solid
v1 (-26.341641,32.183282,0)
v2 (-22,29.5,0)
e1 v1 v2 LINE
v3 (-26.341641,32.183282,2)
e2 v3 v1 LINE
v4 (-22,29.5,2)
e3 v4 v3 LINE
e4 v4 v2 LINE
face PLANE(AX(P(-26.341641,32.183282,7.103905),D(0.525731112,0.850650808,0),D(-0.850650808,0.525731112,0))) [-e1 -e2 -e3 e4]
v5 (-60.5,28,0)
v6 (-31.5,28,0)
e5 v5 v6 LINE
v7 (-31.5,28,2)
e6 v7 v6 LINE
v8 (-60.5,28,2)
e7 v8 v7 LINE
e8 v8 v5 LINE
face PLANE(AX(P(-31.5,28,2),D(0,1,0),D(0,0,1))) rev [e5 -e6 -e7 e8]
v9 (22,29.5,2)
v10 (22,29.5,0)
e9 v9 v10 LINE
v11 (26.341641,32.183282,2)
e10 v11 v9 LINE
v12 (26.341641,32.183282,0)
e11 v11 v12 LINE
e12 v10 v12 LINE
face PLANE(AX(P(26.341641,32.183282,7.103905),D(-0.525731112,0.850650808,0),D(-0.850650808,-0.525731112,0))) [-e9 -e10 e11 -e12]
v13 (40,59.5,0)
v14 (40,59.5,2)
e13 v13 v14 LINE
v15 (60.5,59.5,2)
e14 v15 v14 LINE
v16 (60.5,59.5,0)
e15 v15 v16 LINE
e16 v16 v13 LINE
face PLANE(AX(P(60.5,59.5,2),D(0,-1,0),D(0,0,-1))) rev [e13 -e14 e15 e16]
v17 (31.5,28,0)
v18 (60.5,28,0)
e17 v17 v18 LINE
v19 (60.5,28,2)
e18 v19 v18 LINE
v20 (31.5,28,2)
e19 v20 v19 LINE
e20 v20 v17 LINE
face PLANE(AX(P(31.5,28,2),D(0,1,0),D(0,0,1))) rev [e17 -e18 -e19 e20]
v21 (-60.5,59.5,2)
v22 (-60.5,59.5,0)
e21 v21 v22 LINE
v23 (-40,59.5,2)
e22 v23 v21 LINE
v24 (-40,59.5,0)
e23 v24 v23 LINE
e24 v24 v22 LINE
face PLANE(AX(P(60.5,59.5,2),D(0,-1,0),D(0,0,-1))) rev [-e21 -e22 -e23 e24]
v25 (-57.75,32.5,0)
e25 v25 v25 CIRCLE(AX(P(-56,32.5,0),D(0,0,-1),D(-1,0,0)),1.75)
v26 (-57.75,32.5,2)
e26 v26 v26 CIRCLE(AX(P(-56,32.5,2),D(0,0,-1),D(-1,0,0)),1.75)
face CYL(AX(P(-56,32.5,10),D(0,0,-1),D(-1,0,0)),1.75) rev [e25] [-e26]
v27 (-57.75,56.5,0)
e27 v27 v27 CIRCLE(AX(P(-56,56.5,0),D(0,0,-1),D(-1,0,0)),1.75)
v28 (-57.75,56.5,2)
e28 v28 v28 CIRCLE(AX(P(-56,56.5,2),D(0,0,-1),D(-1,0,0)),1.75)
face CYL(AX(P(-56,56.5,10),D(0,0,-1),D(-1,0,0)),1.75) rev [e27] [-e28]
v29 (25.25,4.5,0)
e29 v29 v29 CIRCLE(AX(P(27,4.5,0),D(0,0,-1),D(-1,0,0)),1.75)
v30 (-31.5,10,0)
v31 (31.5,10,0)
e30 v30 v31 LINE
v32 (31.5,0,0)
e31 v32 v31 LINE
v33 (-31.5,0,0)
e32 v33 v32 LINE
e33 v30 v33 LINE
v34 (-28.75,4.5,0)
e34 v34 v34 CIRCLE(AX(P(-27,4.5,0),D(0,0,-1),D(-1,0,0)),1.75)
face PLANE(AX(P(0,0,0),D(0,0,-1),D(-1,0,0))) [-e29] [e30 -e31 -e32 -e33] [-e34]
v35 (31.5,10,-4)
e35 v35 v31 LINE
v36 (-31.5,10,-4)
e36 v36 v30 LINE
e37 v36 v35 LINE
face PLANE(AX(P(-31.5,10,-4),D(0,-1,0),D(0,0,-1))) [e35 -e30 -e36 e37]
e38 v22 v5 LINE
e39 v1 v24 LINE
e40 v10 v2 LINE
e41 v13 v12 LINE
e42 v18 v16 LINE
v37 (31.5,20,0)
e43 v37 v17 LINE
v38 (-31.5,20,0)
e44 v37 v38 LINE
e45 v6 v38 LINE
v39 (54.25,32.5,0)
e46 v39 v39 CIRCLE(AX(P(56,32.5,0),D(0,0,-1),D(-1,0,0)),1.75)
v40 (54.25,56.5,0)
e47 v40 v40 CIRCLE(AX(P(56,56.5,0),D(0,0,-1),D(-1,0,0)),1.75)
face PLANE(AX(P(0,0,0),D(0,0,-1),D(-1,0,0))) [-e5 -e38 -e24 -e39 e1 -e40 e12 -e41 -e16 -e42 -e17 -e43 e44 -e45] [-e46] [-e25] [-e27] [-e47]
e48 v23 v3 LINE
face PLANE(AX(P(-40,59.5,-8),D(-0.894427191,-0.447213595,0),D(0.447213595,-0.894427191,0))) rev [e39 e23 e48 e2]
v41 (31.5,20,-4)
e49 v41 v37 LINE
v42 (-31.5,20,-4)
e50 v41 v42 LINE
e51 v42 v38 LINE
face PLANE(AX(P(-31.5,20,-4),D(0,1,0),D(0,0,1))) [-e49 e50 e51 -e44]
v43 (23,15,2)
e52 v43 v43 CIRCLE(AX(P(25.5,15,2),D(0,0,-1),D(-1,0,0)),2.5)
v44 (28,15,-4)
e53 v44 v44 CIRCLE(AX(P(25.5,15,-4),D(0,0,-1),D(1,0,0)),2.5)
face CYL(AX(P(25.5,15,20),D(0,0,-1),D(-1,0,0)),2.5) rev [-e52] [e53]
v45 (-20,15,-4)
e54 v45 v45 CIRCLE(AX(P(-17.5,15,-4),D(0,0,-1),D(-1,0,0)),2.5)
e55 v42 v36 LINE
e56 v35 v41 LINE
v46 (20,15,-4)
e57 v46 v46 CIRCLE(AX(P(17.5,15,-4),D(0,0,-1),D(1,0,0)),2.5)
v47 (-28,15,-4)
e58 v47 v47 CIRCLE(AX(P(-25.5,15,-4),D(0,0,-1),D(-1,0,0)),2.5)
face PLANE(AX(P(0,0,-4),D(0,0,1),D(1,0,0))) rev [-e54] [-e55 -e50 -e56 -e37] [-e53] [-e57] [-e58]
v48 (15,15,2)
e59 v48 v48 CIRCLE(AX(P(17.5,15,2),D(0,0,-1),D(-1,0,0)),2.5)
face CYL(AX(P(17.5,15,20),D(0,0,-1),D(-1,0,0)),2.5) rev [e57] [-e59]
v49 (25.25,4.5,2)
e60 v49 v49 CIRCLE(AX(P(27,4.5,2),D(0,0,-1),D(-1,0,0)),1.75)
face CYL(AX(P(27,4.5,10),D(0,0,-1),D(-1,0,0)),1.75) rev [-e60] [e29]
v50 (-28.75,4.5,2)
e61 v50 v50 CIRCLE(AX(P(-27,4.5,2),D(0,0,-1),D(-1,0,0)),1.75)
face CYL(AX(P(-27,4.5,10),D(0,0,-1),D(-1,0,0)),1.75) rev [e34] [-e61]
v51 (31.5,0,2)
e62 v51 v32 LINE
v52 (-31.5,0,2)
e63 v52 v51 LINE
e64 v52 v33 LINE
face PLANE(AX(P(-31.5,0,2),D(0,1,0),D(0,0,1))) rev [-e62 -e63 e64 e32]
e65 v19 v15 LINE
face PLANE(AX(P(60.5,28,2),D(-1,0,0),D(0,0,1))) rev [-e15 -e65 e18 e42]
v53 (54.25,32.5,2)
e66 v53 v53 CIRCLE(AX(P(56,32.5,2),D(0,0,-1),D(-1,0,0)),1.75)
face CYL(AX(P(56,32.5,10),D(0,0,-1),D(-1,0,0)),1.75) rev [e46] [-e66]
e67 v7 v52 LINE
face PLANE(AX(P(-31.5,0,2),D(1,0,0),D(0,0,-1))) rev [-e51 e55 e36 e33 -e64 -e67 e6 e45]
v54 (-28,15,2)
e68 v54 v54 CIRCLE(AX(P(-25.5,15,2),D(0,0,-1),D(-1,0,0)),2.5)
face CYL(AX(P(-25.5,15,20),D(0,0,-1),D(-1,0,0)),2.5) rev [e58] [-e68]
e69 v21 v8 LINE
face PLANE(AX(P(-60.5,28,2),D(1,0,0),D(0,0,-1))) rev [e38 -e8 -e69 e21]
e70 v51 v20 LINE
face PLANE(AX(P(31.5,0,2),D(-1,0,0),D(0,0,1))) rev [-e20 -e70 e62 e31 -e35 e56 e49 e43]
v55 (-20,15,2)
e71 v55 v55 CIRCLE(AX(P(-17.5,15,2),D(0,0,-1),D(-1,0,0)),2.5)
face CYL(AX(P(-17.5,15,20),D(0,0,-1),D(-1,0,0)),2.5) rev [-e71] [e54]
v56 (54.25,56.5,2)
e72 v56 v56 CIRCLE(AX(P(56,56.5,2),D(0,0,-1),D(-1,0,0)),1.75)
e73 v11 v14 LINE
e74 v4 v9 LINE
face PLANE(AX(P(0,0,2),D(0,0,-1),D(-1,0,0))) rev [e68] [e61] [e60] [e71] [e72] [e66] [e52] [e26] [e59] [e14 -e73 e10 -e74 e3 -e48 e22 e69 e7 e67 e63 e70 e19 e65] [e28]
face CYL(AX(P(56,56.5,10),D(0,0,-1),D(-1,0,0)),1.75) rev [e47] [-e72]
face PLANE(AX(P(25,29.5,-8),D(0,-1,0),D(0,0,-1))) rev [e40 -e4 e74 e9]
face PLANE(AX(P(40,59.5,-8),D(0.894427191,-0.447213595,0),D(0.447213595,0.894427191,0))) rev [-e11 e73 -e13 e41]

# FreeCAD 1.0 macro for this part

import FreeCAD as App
import Part
import Sketcher
Q = App.Units.Quantity


def add_polygon(sketch, points):
    """Adds a closed chain of lines whose ends are joined by coincident constraints."""
    first, n = sketch.GeometryCount, len(points)
    for a, b in zip(points, points[1:] + points[:1]):
        sketch.addGeometry(Part.LineSegment(App.Vector(*a, 0), App.Vector(*b, 0)), False)
    for i in range(n):
        sketch.addConstraint(Sketcher.Constraint("Coincident", first + i, 2, first + (i + 1) % n, 1))

doc = App.newDocument("Part")
body = doc.addObject("PartDesign::Body", "Body")

# Sketch on XY plane
sketch1 = body.newObject("Sketcher::SketchObject", "Sketch")
sketch1.AttachmentSupport = (doc.getObject("XY_Plane"), [""])
sketch1.MapMode = "FlatFace"
add_polygon(sketch1, [(-32, 0), (32, 0), (32, 28), (60, 28), (60, 60), (-60, 60), (-60, 28), (-32, 28)])  # lines 0-7
sketch1.addConstraint([
    Sketcher.Constraint("Horizontal", 0),
    Sketcher.Constraint("Vertical", 1),
    Sketcher.Constraint("Horizontal", 2),
    Sketcher.Constraint("Vertical", 3),
    Sketcher.Constraint("Horizontal", 4),
    Sketcher.Constraint("Vertical", 5),
    Sketcher.Constraint("Horizontal", 6),
    Sketcher.Constraint("Vertical", 7),
    Sketcher.Constraint("Symmetric", 0, 2, 7, 2, -1, 1),
    Sketcher.Constraint("Symmetric", 2, 2, 5, 2, -2),
    Sketcher.Constraint("DistanceX", 0, 1, 0, 2, Q("63 mm")),
    Sketcher.Constraint("DistanceX", 2, 1, 2, 2, Q("29 mm")),
    Sketcher.Constraint("DistanceY", 1, 1, 1, 2, Q("28 mm")),
    Sketcher.Constraint("DistanceY", 3, 1, 3, 2, Q("31.5 mm")),
])
pad1 = body.newObject("PartDesign::Pad", "Pad")
pad1.Profile = sketch1
pad1.Length = 2

# Sketch on XY plane
sketch2 = body.newObject("Sketcher::SketchObject", "Sketch001")
sketch2.AttachmentSupport = (doc.getObject("XY_Plane"), [""])
sketch2.MapMode = "FlatFace"
sketch2.addGeometry([
    Part.Circle(App.Vector(56, 56.5, 0), App.Vector(0, 0, 1), 1.8),  # 0
    Part.Circle(App.Vector(56, 32.5, 0), App.Vector(0, 0, 1), 1.8),  # 1
    Part.Circle(App.Vector(27, 4.5, 0), App.Vector(0, 0, 1), 1.8),  # 2
    Part.Circle(App.Vector(-27, 4.5, 0), App.Vector(0, 0, 1), 1.8),  # 3
    Part.Circle(App.Vector(-56, 32.5, 0), App.Vector(0, 0, 1), 1.8),  # 4
    Part.Circle(App.Vector(-56, 56.5, 0), App.Vector(0, 0, 1), 1.8),  # 5
], False)
sketch2.addConstraint([
    Sketcher.Constraint("Equal", 0, 1),
    Sketcher.Constraint("Equal", 1, 2),
    Sketcher.Constraint("Equal", 2, 3),
    Sketcher.Constraint("Equal", 3, 4),
    Sketcher.Constraint("Equal", 4, 5),
    Sketcher.Constraint("Symmetric", 2, 3, 3, 3, -2),
    Sketcher.Constraint("Symmetric", 1, 3, 4, 3, -2),
    Sketcher.Constraint("Symmetric", 0, 3, 5, 3, -2),
    Sketcher.Constraint("Vertical", 0, 3, 1, 3),
    Sketcher.Constraint("Diameter", 0, Q("3.5 mm")),
    Sketcher.Constraint("DistanceX", -1, 1, 0, 3, Q("56 mm")),
    Sketcher.Constraint("DistanceX", -1, 1, 2, 3, Q("27 mm")),
    Sketcher.Constraint("DistanceY", 1, 3, 0, 3, Q("24 mm")),
    Sketcher.Constraint("DistanceY", 2, 3, 1, 3, Q("28 mm")),
    Sketcher.Constraint("DistanceY", -1, 1, 0, 3, Q("56.5 mm")),
])
pocket1 = body.newObject("PartDesign::Pocket", "Pocket")
pocket1.Profile = sketch2
pocket1.Length = 10
pocket1.Reversed = True

# Sketch on XY plane
sketch3 = body.newObject("Sketcher::SketchObject", "Sketch002")
sketch3.AttachmentSupport = (doc.getObject("XY_Plane"), [""])
sketch3.MapMode = "FlatFace"
add_polygon(sketch3, [(-32, 20), (-32, 10), (32, 10), (32, 20)])  # lines 0-3
sketch3.addConstraint([
    Sketcher.Constraint("Vertical", 0),
    Sketcher.Constraint("Horizontal", 1),
    Sketcher.Constraint("Vertical", 2),
    Sketcher.Constraint("Horizontal", 3),
    Sketcher.Constraint("DistanceX", 1, 1, 1, 2, Q("63 mm")),
    Sketcher.Constraint("DistanceY", 0, 2, 0, 1, Q("10 mm")),
    Sketcher.Constraint("DistanceY", -1, 1, 0, 2, Q("10 mm")),
    Sketcher.Constraint("DistanceX", 0, 2, -1, 1, Q("31.5 mm")),
])
pad2 = body.newObject("PartDesign::Pad", "Pad001")
pad2.Profile = sketch3
pad2.Length = 4
pad2.Reversed = True

# Sketch on XY plane
sketch4 = body.newObject("Sketcher::SketchObject", "Sketch003")
sketch4.AttachmentSupport = (doc.getObject("XY_Plane"), [""])
sketch4.MapMode = "FlatFace"
sketch4.AttachmentOffset = App.Placement(App.Vector(0, 0, -4), App.Rotation())
sketch4.addGeometry([
    Part.Circle(App.Vector(-17.5, 15, 0), App.Vector(0, 0, 1), 2.5),
    Part.Circle(App.Vector(-25.5, 15, 0), App.Vector(0, 0, 1), 2.5),
    Part.Circle(App.Vector(25.5, 15, 0), App.Vector(0, 0, 1), 2.5),
    Part.Circle(App.Vector(17.5, 15, 0), App.Vector(0, 0, 1), 2.5),
], False)
sketch4.addConstraint([
    Sketcher.Constraint("Equal", 0, 1),
    Sketcher.Constraint("Equal", 1, 2),
    Sketcher.Constraint("Equal", 2, 3),
    Sketcher.Constraint("Symmetric", 1, 3, 2, 3, -2),
    Sketcher.Constraint("Symmetric", 0, 3, 3, 3, -2),
    Sketcher.Constraint("Horizontal", 0, 3, 1, 3),
    Sketcher.Constraint("Diameter", 0, Q("5 mm")),
    Sketcher.Constraint("DistanceY", -1, 1, 0, 3, Q("15 mm")),
    Sketcher.Constraint("DistanceX", 1, 3, 0, 3, Q("8 mm")),
    Sketcher.Constraint("DistanceX", 0, 3, 2, 3, Q("43 mm")),
])
pocket2 = body.newObject("PartDesign::Pocket", "Pocket001")
pocket2.Profile = sketch4
pocket2.Length = 24
pocket2.Reversed = True

# Sketch on XY plane
sketch5 = body.newObject("Sketcher::SketchObject", "Sketch004")
sketch5.AttachmentSupport = (doc.getObject("XY_Plane"), [""])
sketch5.MapMode = "FlatFace"
sketch5.AttachmentOffset = App.Placement(App.Vector(0, 0, 2), App.Rotation())
add_polygon(sketch5, [(40, 60), (-40, 60), (-25, 30), (25, 30)])  # lines 0-3
sketch5.addConstraint([
    Sketcher.Constraint("Horizontal", 0),
    Sketcher.Constraint("Horizontal", 2),
    Sketcher.Constraint("Equal", 1, 3),
    Sketcher.Constraint("DistanceX", 0, 2, 0, 1, Q("80 mm")),
    Sketcher.Constraint("DistanceX", 2, 1, 2, 2, Q("50 mm")),
    Sketcher.Constraint("DistanceX", 0, 2, -1, 1, Q("40 mm")),
    Sketcher.Constraint("DistanceY", 1, 2, 0, 2, Q("30 mm")),
    Sketcher.Constraint("DistanceY", -1, 1, 0, 2, Q("59.5 mm")),
])
pocket3 = body.newObject("PartDesign::Pocket", "Pocket002")
pocket3.Profile = sketch5
pocket3.Length = 10

# Sketch on XY plane
sketch6 = body.newObject("Sketcher::SketchObject", "Sketch005")
sketch6.AttachmentSupport = (doc.getObject("XY_Plane"), [""])
sketch6.MapMode = "FlatFace"
add_polygon(sketch6, [(26.3, 32.2), (25, 29.5), (22, 29.5)])  # lines 0-2
add_polygon(sketch6, [(-25, 29.5), (-26.3, 32.2), (-22, 29.5)])  # lines 3-5
sketch6.addConstraint([
    Sketcher.Constraint("Horizontal", 1),
    Sketcher.Constraint("Horizontal", 5),
    Sketcher.Constraint("Symmetric", 2, 2, 3, 2, -2),
    Sketcher.Constraint("Symmetric", 1, 2, 4, 2, -2),
    Sketcher.Constraint("Equal", 1, 5),
    Sketcher.Constraint("DistanceX", 1, 2, 1, 1, Q("3 mm")),
    Sketcher.Constraint("Distance", 0, Q("3 mm")),
    Sketcher.Constraint("DistanceX", -1, 1, 0, 2, Q("25 mm")),
    Sketcher.Constraint("DistanceY", -1, 1, 0, 2, Q("29.5 mm")),
    Sketcher.Constraint("DistanceX", -1, 1, 2, 2, Q("26.341641 mm")),
])
pad3 = body.newObject("PartDesign::Pad", "Pad002")
pad3.Profile = sketch6
pad3.Length = 2

doc.recompute()
